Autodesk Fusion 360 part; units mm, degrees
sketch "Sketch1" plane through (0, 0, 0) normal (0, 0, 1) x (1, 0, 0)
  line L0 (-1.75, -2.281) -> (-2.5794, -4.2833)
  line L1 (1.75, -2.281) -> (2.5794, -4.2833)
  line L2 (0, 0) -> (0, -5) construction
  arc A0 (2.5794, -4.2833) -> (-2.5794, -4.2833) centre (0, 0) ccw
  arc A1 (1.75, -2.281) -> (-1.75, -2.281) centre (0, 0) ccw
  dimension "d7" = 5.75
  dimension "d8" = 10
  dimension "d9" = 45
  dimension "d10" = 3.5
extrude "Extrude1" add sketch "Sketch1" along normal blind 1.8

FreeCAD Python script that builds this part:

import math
import FreeCAD as App
import Part
import Sketcher
from FreeCAD import Vector
Q = App.Units.Quantity

doc = App.newDocument("Part")
body = doc.addObject("PartDesign::Body", "Body")

# Sketch on XY plane
sketch1 = body.newObject("Sketcher::SketchObject", "Sketch")
sketch1.AttachmentSupport = (doc.getObject("XY_Plane"), [""])
sketch1.MapMode = "FlatFace"
sketch1.addGeometry([
    Part.LineSegment(Vector(-2.5794, -4.2833, 0), Vector(-1.75, -2.281, 0)),
    Part.ArcOfCircle(Part.Circle(Vector(0, 0, 0), Vector(0, 0, 1), 2.874971), math.radians(-52.504314), math.radians(232.504314)),
    Part.LineSegment(Vector(1.75, -2.281, 0), Vector(2.5794, -4.2833, 0)),
    Part.ArcOfCircle(Part.Circle(Vector(0, 0, 0), Vector(0, 0, 1), 4.999996), math.radians(-58.943681), math.radians(238.943681)),
], False)
sketch1.addConstraint([
    Sketcher.Constraint("Coincident", 0, 2, 1, 2),
    Sketcher.Constraint("Coincident", 1, 1, 2, 1),
    Sketcher.Constraint("Coincident", 2, 2, 3, 1),
    Sketcher.Constraint("Coincident", 3, 2, 0, 1),
    Sketcher.Constraint("Coincident", 1, 3, -1, 1),
    Sketcher.Constraint("Coincident", 3, 3, -1, 1),
    Sketcher.Constraint("Horizontal", 0, 2, 1, 1),
    Sketcher.Constraint("Horizontal", 2, 2, 3, 2),
    Sketcher.Constraint("Radius", 3, 5.0),
    Sketcher.Constraint("Radius", 1, 2.875),
    Sketcher.Constraint("DistanceX", 0, 2, 1, 1, 3.5),
    Sketcher.Constraint("Angle", 0, Q("67.4995 deg")),
])
pad1 = body.newObject("PartDesign::Pad", "Pad")
pad1.Profile = sketch1
pad1.Length = 1.8

doc.recompute()
